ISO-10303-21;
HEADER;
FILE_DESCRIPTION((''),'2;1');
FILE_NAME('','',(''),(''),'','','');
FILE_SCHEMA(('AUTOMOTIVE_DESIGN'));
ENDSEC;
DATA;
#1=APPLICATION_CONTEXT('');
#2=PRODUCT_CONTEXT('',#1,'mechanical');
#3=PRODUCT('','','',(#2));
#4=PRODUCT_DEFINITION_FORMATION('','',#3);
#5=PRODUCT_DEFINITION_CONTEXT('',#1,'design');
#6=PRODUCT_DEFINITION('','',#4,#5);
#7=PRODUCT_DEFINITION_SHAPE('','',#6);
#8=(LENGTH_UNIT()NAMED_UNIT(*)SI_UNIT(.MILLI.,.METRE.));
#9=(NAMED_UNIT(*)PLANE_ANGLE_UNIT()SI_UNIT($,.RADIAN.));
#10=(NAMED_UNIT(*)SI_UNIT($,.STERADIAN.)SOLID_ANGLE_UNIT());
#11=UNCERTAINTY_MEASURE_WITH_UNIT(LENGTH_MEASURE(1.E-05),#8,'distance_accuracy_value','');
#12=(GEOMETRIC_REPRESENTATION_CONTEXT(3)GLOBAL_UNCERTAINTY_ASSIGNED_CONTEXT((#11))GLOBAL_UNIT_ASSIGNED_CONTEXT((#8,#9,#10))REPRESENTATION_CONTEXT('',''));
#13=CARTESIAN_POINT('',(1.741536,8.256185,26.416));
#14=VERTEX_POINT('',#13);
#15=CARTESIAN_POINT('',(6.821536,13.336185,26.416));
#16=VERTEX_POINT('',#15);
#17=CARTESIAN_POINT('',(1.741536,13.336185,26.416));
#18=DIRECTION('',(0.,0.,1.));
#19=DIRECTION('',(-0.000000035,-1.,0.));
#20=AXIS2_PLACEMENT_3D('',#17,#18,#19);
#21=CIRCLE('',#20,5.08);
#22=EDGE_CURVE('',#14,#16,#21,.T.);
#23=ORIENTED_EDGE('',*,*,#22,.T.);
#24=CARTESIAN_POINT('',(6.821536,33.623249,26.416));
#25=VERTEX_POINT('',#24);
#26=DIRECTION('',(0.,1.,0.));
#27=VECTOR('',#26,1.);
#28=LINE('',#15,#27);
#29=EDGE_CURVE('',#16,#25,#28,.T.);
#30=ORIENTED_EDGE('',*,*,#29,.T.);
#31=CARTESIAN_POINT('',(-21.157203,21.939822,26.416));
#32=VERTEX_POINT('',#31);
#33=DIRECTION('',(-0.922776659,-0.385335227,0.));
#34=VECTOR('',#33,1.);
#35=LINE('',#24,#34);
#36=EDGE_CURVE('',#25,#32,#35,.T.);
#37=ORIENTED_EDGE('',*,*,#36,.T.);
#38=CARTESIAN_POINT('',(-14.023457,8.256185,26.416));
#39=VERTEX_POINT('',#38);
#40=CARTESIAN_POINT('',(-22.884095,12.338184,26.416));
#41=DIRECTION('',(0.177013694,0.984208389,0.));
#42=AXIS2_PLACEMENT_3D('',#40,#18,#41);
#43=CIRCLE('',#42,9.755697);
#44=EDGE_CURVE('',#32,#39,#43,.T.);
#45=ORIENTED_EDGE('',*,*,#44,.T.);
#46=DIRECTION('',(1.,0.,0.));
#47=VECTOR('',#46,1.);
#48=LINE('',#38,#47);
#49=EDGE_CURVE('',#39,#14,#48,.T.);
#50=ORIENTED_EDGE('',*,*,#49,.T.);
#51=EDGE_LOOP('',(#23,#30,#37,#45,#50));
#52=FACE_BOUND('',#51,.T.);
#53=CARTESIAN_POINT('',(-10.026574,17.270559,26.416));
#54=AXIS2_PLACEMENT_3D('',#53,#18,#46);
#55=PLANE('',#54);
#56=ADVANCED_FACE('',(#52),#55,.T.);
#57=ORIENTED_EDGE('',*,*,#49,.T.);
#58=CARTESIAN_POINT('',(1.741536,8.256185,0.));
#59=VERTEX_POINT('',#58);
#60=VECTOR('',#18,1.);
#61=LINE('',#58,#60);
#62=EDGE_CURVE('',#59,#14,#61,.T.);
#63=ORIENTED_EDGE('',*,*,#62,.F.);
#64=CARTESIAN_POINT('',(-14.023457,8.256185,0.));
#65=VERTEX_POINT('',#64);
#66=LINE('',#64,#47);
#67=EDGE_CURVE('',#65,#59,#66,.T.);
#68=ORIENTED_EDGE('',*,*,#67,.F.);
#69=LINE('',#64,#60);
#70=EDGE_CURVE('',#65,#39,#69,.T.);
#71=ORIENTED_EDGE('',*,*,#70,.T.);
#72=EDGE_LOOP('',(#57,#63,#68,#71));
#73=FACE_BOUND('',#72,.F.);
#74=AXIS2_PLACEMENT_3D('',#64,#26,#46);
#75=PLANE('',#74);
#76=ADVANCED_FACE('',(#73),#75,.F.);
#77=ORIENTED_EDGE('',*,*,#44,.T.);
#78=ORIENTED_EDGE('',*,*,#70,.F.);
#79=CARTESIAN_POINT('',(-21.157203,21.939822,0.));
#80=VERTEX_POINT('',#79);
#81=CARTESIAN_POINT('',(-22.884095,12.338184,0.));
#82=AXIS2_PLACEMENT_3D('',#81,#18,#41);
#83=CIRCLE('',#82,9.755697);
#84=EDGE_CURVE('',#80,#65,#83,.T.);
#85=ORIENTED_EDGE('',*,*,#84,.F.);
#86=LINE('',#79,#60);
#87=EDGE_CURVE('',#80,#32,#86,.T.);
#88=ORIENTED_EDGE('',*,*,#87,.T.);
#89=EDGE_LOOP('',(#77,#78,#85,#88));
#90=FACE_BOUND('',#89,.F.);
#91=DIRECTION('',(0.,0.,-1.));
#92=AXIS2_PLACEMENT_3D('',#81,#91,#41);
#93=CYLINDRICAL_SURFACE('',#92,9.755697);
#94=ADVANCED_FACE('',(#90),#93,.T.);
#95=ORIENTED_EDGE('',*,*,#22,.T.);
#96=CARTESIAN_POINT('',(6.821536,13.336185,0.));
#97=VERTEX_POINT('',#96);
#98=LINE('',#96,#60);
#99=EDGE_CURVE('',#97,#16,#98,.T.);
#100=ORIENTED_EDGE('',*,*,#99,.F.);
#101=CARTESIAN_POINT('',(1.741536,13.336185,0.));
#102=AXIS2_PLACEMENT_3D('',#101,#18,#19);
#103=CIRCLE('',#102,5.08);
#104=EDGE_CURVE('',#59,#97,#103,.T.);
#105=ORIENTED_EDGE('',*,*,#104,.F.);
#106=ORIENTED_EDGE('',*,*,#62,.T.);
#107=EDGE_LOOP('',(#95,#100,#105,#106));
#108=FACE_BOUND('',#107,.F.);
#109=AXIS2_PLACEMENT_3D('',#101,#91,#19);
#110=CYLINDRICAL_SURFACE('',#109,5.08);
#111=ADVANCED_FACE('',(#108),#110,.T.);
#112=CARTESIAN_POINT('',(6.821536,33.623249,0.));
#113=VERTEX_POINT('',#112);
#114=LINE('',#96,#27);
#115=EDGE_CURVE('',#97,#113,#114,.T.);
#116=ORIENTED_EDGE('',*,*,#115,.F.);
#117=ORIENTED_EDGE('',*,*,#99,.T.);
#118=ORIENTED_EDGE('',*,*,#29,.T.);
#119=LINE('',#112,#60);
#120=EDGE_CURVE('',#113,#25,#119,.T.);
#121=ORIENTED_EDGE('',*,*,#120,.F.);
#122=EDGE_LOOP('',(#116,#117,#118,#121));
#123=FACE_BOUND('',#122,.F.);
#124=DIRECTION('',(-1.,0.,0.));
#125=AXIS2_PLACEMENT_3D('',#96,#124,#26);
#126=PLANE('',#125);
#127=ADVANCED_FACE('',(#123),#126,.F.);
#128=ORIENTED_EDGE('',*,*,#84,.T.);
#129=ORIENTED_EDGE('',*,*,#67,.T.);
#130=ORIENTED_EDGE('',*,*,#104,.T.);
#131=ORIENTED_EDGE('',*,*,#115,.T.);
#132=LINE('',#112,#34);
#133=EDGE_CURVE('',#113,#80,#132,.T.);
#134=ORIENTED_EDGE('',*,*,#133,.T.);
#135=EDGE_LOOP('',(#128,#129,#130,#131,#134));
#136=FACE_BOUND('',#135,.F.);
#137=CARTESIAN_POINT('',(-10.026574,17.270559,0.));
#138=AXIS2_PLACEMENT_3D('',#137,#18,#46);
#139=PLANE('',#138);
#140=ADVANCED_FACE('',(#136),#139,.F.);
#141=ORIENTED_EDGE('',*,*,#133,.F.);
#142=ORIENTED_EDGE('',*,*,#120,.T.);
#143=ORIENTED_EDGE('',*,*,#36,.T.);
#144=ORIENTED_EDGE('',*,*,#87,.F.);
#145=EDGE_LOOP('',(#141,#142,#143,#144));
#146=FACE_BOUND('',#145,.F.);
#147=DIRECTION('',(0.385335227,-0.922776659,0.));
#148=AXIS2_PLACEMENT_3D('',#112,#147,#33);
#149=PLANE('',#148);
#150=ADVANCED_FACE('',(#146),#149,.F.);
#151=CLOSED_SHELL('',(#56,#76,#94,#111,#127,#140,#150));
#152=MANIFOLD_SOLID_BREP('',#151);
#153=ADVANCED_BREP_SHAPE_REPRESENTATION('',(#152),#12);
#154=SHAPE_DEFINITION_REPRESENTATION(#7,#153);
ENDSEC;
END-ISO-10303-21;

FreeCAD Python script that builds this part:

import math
import FreeCAD as App
import Part
import Sketcher
from FreeCAD import Vector
Q = App.Units.Quantity

doc = App.newDocument("Part")
body = doc.addObject("PartDesign::Body", "Body")

sketch1 = body.newObject("Sketcher::SketchObject", "Sketch")
sketch1.AttachmentSupport = (doc.getObject("XY_Plane"), [""])
sketch1.MapMode = "FlatFace"
sketch1.addGeometry([
    Part.LineSegment(Vector(6.821536, 33.623249, 0), Vector(-21.157203, 21.939822, 0)),
    Part.ArcOfCircle(Part.Circle(Vector(-22.884095, 12.338184, 0), Vector(0, 0, 1), 9.755697), math.radians(79.804136), math.radians(335.264995)),
    Part.LineSegment(Vector(-14.023457, 8.256185, 0), Vector(1.741536, 8.256185, 0)),
    Part.ArcOfCircle(Part.Circle(Vector(1.741536, 13.336185, 0), Vector(0, 0, 1), 5.08), math.radians(-90.000002), math.radians(0.000002)),
    Part.LineSegment(Vector(6.821536, 13.336185, 0), Vector(6.821536, 33.623249, 0)),
], False)
sketch1.addConstraint([
    Sketcher.Constraint("Coincident", 0, 2, 1, 1),
    Sketcher.Constraint("Coincident", 1, 2, 2, 1),
    Sketcher.Constraint("Tangent", 2, 2, 3, 1),
    Sketcher.Constraint("Tangent", 3, 2, 4, 1),
    Sketcher.Constraint("Coincident", 4, 2, 0, 1),
    Sketcher.Constraint("Horizontal", 2),
    Sketcher.Constraint("Vertical", 4),
    Sketcher.Constraint("Radius", 3, Q("0.2 in")),
    Sketcher.Constraint("Radius", 1, 9.755697),
    Sketcher.Constraint("DistanceY", 1, 3, 3, 3, 0.998001),
    Sketcher.Constraint("DistanceX", 2, 1, 2, 2, 15.764993),
    Sketcher.Constraint("DistanceY", 4, 1, 4, 2, 20.287064),
    Sketcher.Constraint("DistanceY", -1, 1, 0, 2, 21.939822),
    Sketcher.Constraint("DistanceY", -1, 1, 4, 2, 33.623249),
    Sketcher.Constraint("DistanceX", 1, 3, -1, 1, 22.884095),
])
pad1 = body.newObject("PartDesign::Pad", "Pad")
pad1.Profile = sketch1
pad1.Length = Q("1.04 in")

doc.recompute()
